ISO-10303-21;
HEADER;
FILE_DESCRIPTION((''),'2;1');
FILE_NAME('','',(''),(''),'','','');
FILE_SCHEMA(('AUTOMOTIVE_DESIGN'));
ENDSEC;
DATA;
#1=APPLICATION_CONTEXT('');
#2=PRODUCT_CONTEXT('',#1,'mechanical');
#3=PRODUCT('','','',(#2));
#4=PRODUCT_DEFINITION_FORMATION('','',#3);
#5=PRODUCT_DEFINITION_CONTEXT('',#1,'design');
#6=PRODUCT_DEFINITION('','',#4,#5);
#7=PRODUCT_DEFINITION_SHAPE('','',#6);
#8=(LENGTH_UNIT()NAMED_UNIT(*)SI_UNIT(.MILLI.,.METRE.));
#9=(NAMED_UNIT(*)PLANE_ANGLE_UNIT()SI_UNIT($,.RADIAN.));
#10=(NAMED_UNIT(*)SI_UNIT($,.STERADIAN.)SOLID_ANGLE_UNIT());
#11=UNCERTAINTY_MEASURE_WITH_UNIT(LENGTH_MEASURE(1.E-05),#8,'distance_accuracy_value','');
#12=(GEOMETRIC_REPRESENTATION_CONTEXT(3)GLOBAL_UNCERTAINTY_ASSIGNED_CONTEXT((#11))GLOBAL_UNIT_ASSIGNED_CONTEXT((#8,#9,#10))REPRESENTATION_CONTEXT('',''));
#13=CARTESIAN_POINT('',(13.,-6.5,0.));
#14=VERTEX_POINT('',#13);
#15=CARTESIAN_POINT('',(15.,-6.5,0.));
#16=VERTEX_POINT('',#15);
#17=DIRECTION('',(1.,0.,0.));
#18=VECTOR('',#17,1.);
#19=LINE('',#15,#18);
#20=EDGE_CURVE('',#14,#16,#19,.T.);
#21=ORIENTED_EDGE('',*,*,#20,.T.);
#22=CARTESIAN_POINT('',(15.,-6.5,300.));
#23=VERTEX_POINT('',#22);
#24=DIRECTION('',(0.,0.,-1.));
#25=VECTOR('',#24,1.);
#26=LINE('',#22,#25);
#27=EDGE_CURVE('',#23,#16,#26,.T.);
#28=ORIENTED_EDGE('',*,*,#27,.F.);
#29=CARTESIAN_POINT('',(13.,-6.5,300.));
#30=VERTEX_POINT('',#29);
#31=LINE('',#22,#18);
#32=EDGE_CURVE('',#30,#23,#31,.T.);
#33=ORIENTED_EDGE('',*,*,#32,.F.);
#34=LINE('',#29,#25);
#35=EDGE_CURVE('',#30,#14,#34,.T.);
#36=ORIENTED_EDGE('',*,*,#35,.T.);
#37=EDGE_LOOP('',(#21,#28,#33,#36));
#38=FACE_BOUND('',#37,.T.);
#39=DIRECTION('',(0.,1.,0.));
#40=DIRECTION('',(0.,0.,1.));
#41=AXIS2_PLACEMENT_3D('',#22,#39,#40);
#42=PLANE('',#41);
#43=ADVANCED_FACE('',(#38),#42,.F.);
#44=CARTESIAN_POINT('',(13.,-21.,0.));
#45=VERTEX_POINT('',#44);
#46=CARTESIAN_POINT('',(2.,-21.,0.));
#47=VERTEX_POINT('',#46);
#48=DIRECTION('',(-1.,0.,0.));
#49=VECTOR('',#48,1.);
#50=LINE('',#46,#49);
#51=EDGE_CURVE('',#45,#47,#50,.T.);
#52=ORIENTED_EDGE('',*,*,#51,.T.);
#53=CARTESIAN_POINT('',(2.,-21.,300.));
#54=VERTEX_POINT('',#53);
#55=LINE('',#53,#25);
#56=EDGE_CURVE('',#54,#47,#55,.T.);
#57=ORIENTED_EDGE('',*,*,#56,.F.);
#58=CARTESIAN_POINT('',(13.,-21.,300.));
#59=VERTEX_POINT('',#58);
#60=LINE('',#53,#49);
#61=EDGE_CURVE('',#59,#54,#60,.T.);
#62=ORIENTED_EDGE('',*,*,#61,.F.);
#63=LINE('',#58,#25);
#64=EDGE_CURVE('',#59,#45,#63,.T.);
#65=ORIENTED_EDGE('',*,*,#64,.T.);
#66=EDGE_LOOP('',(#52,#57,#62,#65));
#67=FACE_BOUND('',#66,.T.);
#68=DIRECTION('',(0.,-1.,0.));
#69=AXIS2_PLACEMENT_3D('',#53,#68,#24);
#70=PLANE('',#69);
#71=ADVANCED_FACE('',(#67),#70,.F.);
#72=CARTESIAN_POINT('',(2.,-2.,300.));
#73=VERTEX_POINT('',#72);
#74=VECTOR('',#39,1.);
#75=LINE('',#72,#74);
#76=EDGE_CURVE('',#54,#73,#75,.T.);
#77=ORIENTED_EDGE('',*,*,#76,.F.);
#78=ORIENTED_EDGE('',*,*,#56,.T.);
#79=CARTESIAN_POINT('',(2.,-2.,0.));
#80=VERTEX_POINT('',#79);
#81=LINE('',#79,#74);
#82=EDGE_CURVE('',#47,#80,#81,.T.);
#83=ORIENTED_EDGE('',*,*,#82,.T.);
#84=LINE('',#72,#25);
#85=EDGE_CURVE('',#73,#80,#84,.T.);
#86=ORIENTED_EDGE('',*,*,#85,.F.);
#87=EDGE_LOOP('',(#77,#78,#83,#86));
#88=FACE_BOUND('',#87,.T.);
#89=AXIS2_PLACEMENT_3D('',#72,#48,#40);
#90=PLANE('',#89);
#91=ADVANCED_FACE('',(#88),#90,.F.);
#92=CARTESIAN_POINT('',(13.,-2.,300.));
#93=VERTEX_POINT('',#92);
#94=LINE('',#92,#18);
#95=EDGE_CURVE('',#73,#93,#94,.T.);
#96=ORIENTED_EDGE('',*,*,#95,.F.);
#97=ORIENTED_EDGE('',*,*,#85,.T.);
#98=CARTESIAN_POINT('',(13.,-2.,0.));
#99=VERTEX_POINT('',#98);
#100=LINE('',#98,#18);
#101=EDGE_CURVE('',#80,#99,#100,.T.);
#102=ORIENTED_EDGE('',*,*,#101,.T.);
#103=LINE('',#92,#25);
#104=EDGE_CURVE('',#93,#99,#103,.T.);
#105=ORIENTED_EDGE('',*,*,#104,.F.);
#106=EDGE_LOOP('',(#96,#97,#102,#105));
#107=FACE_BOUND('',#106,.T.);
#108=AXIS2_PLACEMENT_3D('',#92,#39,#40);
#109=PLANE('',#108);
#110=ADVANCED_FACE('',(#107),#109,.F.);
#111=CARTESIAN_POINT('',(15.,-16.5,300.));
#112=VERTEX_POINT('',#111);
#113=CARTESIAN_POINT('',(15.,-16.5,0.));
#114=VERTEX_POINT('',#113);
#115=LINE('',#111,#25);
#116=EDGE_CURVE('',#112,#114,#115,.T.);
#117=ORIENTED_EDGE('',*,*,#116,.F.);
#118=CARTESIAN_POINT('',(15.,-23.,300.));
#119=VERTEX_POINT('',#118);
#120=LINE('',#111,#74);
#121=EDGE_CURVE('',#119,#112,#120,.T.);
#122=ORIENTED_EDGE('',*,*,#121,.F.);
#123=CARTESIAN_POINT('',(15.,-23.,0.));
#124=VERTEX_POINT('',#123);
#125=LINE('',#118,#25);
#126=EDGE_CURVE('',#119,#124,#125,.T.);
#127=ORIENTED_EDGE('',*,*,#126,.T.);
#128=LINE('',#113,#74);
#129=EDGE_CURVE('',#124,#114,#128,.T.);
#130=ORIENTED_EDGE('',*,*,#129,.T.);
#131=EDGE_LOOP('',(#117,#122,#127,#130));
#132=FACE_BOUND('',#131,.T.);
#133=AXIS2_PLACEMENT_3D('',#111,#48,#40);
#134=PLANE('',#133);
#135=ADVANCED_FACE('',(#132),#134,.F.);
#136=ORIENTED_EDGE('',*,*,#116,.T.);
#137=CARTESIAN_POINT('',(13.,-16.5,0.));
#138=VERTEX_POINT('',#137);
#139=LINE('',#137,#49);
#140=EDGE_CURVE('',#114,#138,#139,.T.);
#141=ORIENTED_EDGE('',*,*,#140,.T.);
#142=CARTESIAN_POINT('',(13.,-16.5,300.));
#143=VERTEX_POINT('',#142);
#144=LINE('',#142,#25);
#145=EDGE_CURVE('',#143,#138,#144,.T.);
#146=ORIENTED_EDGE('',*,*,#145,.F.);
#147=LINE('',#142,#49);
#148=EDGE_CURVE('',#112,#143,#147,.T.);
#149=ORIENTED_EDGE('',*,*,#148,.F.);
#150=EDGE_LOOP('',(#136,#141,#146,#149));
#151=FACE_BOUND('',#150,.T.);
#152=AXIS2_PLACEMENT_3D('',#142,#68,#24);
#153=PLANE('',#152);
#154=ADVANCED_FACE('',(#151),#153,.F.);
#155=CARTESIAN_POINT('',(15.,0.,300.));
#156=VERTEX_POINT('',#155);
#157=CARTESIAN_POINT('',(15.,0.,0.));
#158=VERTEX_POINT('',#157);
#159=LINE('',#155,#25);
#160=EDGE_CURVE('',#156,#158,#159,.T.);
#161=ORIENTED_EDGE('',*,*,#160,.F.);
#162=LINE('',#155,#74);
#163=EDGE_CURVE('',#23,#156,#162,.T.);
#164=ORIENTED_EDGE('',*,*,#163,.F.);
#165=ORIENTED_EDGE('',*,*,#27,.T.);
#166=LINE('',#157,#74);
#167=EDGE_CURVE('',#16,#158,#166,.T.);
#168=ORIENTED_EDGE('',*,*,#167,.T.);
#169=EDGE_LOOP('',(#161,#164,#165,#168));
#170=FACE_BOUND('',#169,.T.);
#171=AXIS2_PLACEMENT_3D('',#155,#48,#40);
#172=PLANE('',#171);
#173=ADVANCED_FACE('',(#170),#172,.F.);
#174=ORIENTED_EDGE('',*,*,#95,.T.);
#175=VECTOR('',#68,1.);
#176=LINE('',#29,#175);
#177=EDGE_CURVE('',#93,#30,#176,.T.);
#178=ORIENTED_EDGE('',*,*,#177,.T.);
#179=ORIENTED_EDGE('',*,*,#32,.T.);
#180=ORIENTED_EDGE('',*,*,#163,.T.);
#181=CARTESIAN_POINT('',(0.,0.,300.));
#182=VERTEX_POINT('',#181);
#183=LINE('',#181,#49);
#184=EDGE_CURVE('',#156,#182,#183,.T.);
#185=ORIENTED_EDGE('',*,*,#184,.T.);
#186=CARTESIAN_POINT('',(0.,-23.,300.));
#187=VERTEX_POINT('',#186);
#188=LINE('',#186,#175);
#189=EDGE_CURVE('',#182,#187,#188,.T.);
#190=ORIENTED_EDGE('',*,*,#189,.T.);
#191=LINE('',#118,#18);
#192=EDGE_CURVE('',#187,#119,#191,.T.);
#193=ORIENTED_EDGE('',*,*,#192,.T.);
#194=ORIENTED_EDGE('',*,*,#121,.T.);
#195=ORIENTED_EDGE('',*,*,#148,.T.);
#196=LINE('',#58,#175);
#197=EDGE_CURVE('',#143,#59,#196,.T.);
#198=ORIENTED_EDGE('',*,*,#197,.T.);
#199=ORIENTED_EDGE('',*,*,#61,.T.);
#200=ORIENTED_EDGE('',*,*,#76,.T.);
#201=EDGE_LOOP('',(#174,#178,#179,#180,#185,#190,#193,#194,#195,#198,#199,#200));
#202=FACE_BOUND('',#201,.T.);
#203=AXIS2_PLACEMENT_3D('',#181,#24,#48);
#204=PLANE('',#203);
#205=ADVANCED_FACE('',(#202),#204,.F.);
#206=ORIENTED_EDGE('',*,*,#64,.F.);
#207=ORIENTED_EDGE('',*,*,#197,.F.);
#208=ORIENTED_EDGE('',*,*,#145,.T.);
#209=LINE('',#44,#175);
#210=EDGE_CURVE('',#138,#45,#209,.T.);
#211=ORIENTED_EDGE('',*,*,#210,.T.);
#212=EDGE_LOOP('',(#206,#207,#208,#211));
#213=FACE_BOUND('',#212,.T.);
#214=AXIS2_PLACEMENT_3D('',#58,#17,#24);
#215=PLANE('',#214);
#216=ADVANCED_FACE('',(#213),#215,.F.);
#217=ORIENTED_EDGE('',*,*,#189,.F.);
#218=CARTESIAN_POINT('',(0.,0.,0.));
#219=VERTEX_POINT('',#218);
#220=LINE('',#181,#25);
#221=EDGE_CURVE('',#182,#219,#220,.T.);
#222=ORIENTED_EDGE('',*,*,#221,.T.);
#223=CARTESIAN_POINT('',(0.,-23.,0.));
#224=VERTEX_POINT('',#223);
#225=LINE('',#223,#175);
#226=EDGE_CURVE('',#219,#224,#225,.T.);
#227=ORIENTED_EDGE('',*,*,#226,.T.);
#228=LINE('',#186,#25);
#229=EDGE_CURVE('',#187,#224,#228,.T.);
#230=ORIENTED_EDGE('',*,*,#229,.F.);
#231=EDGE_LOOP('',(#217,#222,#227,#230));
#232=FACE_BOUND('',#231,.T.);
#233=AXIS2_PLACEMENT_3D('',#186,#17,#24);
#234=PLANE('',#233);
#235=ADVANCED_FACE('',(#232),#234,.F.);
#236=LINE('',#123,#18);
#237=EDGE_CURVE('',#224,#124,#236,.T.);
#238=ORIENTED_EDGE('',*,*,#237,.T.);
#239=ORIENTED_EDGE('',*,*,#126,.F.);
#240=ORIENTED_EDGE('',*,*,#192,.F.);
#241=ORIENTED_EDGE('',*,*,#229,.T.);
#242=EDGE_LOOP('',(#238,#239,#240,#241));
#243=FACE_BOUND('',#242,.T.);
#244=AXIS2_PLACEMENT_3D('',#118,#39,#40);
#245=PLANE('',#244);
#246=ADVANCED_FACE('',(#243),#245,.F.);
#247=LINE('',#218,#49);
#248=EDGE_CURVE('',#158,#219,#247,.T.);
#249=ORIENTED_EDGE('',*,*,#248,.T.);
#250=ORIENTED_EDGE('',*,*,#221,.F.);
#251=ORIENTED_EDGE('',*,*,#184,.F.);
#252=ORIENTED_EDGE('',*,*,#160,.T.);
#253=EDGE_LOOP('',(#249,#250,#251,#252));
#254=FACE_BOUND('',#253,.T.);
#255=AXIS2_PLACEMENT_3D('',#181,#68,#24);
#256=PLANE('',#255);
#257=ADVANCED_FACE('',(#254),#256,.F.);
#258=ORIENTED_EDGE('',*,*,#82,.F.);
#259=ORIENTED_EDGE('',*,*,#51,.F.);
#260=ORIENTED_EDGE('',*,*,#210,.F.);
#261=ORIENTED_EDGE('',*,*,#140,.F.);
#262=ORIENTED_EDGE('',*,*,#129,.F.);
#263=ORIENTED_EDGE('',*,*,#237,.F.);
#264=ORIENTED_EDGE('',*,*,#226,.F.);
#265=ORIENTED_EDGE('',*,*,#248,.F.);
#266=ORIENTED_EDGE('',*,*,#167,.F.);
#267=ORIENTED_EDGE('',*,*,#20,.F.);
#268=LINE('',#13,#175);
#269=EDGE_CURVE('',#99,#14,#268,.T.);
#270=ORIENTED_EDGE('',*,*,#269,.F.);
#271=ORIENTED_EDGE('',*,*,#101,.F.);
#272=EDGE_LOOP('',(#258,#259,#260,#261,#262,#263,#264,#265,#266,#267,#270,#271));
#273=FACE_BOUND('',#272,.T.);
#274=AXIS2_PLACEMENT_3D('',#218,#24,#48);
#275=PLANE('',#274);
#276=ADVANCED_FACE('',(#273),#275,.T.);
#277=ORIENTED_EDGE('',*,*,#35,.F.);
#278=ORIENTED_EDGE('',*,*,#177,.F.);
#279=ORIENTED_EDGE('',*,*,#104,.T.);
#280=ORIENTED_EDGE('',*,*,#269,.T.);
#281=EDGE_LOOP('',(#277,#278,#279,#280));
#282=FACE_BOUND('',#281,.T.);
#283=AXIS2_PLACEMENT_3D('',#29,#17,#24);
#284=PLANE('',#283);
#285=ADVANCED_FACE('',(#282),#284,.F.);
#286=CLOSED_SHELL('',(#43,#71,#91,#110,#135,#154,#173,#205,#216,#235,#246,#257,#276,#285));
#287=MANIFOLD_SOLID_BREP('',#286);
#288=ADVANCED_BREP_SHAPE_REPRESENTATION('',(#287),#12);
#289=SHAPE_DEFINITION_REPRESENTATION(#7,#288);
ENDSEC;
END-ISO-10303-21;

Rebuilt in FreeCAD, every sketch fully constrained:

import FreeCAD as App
import Part
import Sketcher

V = App.Vector

doc = App.newDocument("Part")
params = doc.addObject("Spreadsheet::Sheet", "Params")
for row, (alias, value) in enumerate([
    ("sketch1_width", "15 mm"),
    ("sketch1_width2", "2 mm"),
    ("sketch1_width3", "11 mm"),
    ("sketch1_height", "23 mm"),
    ("sketch1_height2", "19 mm"),
    ("pad1_length", "300 mm"),
], start=1):
    params.set(f"A{row}", alias)
    params.set(f"B{row}", "=" + value)
    params.setAlias(f"B{row}", alias)

body = doc.addObject("PartDesign::Body", "Body")

# Sketch on XY plane
sketch1 = body.newObject("Sketcher::SketchObject", "Sketch")
sketch1.AttachmentSupport = (doc.getObject("XY_Plane"), [""])
sketch1.MapMode = "FlatFace"
sketch1.addGeometry(Part.LineSegment(V(15, 0, 0), V(0, 0, 0)), False)
sketch1.addGeometry(Part.LineSegment(V(0, 0, 0), V(0, -23, 0)), False)
sketch1.addGeometry(Part.LineSegment(V(0, -23, 0), V(15, -23, 0)), False)
sketch1.addGeometry(Part.LineSegment(V(15, -23, 0), V(15, -16.5, 0)), False)
sketch1.addGeometry(Part.LineSegment(V(15, -16.5, 0), V(13, -16.5, 0)), False)
sketch1.addGeometry(Part.LineSegment(V(13, -16.5, 0), V(13, -21, 0)), False)
sketch1.addGeometry(Part.LineSegment(V(13, -21, 0), V(2, -21, 0)), False)
sketch1.addGeometry(Part.LineSegment(V(2, -21, 0), V(2, -2, 0)), False)
sketch1.addGeometry(Part.LineSegment(V(2, -2, 0), V(13, -2, 0)), False)
sketch1.addGeometry(Part.LineSegment(V(13, -2, 0), V(13, -6.5, 0)), False)
sketch1.addGeometry(Part.LineSegment(V(13, -6.5, 0), V(15, -6.5, 0)), False)
sketch1.addGeometry(Part.LineSegment(V(15, -6.5, 0), V(15, 0, 0)), False)
sketch1.addConstraint(Sketcher.Constraint("Coincident", 0, 2, 1, 1))
sketch1.addConstraint(Sketcher.Constraint("Coincident", 1, 2, 2, 1))
sketch1.addConstraint(Sketcher.Constraint("Coincident", 2, 2, 3, 1))
sketch1.addConstraint(Sketcher.Constraint("Coincident", 3, 2, 4, 1))
sketch1.addConstraint(Sketcher.Constraint("Coincident", 4, 2, 5, 1))
sketch1.addConstraint(Sketcher.Constraint("Coincident", 5, 2, 6, 1))
sketch1.addConstraint(Sketcher.Constraint("Coincident", 6, 2, 7, 1))
sketch1.addConstraint(Sketcher.Constraint("Coincident", 7, 2, 8, 1))
sketch1.addConstraint(Sketcher.Constraint("Coincident", 8, 2, 9, 1))
sketch1.addConstraint(Sketcher.Constraint("Coincident", 9, 2, 10, 1))
sketch1.addConstraint(Sketcher.Constraint("Coincident", 10, 2, 11, 1))
sketch1.addConstraint(Sketcher.Constraint("Coincident", 11, 2, 0, 1))
sketch1.addConstraint(Sketcher.Constraint("Horizontal", 0))
sketch1.addConstraint(Sketcher.Constraint("Vertical", 1))
sketch1.addConstraint(Sketcher.Constraint("Horizontal", 2))
sketch1.addConstraint(Sketcher.Constraint("Vertical", 3))
sketch1.addConstraint(Sketcher.Constraint("Horizontal", 4))
sketch1.addConstraint(Sketcher.Constraint("Vertical", 5))
sketch1.addConstraint(Sketcher.Constraint("Horizontal", 6))
sketch1.addConstraint(Sketcher.Constraint("Vertical", 7))
sketch1.addConstraint(Sketcher.Constraint("Horizontal", 8))
sketch1.addConstraint(Sketcher.Constraint("Vertical", 9))
sketch1.addConstraint(Sketcher.Constraint("Horizontal", 10))
sketch1.addConstraint(Sketcher.Constraint("Vertical", 11))
sketch1.addConstraint(Sketcher.Constraint("Coincident", 0, 2, -1, 1))
sketch1.addConstraint(Sketcher.Constraint("Vertical", 5, 2, 8, 2))
sketch1.addConstraint(Sketcher.Constraint("Vertical", 3, 2, 10, 2))
sketch1.addConstraint(Sketcher.Constraint("Equal", 5, 9))
sketch1.addConstraint(Sketcher.Constraint("Equal", 3, 11))
sketch1.addConstraint(Sketcher.Constraint("DistanceX", 0, 2, 0, 1, 15.0))
sketch1.addConstraint(Sketcher.Constraint("DistanceX", 4, 2, 4, 1, 2.0))
sketch1.addConstraint(Sketcher.Constraint("DistanceX", 6, 2, 6, 1, 11.0))
sketch1.addConstraint(Sketcher.Constraint("DistanceY", 1, 2, 1, 1, 23.0))
sketch1.addConstraint(Sketcher.Constraint("DistanceY", 7, 1, 7, 2, 19.0))
sketch1.addConstraint(Sketcher.Constraint("DistanceY", 3, 1, 3, 2, 6.5))
sketch1.setExpression("Constraints[29]", "Params.sketch1_width")
sketch1.setExpression("Constraints[30]", "Params.sketch1_width2")
sketch1.setExpression("Constraints[31]", "Params.sketch1_width3")
sketch1.setExpression("Constraints[32]", "Params.sketch1_height")
sketch1.setExpression("Constraints[33]", "Params.sketch1_height2")
pad1 = body.newObject("PartDesign::Pad", "Pad")
pad1.Profile = sketch1
pad1.setExpression("Length", "Params.pad1_length")

doc.recompute()
